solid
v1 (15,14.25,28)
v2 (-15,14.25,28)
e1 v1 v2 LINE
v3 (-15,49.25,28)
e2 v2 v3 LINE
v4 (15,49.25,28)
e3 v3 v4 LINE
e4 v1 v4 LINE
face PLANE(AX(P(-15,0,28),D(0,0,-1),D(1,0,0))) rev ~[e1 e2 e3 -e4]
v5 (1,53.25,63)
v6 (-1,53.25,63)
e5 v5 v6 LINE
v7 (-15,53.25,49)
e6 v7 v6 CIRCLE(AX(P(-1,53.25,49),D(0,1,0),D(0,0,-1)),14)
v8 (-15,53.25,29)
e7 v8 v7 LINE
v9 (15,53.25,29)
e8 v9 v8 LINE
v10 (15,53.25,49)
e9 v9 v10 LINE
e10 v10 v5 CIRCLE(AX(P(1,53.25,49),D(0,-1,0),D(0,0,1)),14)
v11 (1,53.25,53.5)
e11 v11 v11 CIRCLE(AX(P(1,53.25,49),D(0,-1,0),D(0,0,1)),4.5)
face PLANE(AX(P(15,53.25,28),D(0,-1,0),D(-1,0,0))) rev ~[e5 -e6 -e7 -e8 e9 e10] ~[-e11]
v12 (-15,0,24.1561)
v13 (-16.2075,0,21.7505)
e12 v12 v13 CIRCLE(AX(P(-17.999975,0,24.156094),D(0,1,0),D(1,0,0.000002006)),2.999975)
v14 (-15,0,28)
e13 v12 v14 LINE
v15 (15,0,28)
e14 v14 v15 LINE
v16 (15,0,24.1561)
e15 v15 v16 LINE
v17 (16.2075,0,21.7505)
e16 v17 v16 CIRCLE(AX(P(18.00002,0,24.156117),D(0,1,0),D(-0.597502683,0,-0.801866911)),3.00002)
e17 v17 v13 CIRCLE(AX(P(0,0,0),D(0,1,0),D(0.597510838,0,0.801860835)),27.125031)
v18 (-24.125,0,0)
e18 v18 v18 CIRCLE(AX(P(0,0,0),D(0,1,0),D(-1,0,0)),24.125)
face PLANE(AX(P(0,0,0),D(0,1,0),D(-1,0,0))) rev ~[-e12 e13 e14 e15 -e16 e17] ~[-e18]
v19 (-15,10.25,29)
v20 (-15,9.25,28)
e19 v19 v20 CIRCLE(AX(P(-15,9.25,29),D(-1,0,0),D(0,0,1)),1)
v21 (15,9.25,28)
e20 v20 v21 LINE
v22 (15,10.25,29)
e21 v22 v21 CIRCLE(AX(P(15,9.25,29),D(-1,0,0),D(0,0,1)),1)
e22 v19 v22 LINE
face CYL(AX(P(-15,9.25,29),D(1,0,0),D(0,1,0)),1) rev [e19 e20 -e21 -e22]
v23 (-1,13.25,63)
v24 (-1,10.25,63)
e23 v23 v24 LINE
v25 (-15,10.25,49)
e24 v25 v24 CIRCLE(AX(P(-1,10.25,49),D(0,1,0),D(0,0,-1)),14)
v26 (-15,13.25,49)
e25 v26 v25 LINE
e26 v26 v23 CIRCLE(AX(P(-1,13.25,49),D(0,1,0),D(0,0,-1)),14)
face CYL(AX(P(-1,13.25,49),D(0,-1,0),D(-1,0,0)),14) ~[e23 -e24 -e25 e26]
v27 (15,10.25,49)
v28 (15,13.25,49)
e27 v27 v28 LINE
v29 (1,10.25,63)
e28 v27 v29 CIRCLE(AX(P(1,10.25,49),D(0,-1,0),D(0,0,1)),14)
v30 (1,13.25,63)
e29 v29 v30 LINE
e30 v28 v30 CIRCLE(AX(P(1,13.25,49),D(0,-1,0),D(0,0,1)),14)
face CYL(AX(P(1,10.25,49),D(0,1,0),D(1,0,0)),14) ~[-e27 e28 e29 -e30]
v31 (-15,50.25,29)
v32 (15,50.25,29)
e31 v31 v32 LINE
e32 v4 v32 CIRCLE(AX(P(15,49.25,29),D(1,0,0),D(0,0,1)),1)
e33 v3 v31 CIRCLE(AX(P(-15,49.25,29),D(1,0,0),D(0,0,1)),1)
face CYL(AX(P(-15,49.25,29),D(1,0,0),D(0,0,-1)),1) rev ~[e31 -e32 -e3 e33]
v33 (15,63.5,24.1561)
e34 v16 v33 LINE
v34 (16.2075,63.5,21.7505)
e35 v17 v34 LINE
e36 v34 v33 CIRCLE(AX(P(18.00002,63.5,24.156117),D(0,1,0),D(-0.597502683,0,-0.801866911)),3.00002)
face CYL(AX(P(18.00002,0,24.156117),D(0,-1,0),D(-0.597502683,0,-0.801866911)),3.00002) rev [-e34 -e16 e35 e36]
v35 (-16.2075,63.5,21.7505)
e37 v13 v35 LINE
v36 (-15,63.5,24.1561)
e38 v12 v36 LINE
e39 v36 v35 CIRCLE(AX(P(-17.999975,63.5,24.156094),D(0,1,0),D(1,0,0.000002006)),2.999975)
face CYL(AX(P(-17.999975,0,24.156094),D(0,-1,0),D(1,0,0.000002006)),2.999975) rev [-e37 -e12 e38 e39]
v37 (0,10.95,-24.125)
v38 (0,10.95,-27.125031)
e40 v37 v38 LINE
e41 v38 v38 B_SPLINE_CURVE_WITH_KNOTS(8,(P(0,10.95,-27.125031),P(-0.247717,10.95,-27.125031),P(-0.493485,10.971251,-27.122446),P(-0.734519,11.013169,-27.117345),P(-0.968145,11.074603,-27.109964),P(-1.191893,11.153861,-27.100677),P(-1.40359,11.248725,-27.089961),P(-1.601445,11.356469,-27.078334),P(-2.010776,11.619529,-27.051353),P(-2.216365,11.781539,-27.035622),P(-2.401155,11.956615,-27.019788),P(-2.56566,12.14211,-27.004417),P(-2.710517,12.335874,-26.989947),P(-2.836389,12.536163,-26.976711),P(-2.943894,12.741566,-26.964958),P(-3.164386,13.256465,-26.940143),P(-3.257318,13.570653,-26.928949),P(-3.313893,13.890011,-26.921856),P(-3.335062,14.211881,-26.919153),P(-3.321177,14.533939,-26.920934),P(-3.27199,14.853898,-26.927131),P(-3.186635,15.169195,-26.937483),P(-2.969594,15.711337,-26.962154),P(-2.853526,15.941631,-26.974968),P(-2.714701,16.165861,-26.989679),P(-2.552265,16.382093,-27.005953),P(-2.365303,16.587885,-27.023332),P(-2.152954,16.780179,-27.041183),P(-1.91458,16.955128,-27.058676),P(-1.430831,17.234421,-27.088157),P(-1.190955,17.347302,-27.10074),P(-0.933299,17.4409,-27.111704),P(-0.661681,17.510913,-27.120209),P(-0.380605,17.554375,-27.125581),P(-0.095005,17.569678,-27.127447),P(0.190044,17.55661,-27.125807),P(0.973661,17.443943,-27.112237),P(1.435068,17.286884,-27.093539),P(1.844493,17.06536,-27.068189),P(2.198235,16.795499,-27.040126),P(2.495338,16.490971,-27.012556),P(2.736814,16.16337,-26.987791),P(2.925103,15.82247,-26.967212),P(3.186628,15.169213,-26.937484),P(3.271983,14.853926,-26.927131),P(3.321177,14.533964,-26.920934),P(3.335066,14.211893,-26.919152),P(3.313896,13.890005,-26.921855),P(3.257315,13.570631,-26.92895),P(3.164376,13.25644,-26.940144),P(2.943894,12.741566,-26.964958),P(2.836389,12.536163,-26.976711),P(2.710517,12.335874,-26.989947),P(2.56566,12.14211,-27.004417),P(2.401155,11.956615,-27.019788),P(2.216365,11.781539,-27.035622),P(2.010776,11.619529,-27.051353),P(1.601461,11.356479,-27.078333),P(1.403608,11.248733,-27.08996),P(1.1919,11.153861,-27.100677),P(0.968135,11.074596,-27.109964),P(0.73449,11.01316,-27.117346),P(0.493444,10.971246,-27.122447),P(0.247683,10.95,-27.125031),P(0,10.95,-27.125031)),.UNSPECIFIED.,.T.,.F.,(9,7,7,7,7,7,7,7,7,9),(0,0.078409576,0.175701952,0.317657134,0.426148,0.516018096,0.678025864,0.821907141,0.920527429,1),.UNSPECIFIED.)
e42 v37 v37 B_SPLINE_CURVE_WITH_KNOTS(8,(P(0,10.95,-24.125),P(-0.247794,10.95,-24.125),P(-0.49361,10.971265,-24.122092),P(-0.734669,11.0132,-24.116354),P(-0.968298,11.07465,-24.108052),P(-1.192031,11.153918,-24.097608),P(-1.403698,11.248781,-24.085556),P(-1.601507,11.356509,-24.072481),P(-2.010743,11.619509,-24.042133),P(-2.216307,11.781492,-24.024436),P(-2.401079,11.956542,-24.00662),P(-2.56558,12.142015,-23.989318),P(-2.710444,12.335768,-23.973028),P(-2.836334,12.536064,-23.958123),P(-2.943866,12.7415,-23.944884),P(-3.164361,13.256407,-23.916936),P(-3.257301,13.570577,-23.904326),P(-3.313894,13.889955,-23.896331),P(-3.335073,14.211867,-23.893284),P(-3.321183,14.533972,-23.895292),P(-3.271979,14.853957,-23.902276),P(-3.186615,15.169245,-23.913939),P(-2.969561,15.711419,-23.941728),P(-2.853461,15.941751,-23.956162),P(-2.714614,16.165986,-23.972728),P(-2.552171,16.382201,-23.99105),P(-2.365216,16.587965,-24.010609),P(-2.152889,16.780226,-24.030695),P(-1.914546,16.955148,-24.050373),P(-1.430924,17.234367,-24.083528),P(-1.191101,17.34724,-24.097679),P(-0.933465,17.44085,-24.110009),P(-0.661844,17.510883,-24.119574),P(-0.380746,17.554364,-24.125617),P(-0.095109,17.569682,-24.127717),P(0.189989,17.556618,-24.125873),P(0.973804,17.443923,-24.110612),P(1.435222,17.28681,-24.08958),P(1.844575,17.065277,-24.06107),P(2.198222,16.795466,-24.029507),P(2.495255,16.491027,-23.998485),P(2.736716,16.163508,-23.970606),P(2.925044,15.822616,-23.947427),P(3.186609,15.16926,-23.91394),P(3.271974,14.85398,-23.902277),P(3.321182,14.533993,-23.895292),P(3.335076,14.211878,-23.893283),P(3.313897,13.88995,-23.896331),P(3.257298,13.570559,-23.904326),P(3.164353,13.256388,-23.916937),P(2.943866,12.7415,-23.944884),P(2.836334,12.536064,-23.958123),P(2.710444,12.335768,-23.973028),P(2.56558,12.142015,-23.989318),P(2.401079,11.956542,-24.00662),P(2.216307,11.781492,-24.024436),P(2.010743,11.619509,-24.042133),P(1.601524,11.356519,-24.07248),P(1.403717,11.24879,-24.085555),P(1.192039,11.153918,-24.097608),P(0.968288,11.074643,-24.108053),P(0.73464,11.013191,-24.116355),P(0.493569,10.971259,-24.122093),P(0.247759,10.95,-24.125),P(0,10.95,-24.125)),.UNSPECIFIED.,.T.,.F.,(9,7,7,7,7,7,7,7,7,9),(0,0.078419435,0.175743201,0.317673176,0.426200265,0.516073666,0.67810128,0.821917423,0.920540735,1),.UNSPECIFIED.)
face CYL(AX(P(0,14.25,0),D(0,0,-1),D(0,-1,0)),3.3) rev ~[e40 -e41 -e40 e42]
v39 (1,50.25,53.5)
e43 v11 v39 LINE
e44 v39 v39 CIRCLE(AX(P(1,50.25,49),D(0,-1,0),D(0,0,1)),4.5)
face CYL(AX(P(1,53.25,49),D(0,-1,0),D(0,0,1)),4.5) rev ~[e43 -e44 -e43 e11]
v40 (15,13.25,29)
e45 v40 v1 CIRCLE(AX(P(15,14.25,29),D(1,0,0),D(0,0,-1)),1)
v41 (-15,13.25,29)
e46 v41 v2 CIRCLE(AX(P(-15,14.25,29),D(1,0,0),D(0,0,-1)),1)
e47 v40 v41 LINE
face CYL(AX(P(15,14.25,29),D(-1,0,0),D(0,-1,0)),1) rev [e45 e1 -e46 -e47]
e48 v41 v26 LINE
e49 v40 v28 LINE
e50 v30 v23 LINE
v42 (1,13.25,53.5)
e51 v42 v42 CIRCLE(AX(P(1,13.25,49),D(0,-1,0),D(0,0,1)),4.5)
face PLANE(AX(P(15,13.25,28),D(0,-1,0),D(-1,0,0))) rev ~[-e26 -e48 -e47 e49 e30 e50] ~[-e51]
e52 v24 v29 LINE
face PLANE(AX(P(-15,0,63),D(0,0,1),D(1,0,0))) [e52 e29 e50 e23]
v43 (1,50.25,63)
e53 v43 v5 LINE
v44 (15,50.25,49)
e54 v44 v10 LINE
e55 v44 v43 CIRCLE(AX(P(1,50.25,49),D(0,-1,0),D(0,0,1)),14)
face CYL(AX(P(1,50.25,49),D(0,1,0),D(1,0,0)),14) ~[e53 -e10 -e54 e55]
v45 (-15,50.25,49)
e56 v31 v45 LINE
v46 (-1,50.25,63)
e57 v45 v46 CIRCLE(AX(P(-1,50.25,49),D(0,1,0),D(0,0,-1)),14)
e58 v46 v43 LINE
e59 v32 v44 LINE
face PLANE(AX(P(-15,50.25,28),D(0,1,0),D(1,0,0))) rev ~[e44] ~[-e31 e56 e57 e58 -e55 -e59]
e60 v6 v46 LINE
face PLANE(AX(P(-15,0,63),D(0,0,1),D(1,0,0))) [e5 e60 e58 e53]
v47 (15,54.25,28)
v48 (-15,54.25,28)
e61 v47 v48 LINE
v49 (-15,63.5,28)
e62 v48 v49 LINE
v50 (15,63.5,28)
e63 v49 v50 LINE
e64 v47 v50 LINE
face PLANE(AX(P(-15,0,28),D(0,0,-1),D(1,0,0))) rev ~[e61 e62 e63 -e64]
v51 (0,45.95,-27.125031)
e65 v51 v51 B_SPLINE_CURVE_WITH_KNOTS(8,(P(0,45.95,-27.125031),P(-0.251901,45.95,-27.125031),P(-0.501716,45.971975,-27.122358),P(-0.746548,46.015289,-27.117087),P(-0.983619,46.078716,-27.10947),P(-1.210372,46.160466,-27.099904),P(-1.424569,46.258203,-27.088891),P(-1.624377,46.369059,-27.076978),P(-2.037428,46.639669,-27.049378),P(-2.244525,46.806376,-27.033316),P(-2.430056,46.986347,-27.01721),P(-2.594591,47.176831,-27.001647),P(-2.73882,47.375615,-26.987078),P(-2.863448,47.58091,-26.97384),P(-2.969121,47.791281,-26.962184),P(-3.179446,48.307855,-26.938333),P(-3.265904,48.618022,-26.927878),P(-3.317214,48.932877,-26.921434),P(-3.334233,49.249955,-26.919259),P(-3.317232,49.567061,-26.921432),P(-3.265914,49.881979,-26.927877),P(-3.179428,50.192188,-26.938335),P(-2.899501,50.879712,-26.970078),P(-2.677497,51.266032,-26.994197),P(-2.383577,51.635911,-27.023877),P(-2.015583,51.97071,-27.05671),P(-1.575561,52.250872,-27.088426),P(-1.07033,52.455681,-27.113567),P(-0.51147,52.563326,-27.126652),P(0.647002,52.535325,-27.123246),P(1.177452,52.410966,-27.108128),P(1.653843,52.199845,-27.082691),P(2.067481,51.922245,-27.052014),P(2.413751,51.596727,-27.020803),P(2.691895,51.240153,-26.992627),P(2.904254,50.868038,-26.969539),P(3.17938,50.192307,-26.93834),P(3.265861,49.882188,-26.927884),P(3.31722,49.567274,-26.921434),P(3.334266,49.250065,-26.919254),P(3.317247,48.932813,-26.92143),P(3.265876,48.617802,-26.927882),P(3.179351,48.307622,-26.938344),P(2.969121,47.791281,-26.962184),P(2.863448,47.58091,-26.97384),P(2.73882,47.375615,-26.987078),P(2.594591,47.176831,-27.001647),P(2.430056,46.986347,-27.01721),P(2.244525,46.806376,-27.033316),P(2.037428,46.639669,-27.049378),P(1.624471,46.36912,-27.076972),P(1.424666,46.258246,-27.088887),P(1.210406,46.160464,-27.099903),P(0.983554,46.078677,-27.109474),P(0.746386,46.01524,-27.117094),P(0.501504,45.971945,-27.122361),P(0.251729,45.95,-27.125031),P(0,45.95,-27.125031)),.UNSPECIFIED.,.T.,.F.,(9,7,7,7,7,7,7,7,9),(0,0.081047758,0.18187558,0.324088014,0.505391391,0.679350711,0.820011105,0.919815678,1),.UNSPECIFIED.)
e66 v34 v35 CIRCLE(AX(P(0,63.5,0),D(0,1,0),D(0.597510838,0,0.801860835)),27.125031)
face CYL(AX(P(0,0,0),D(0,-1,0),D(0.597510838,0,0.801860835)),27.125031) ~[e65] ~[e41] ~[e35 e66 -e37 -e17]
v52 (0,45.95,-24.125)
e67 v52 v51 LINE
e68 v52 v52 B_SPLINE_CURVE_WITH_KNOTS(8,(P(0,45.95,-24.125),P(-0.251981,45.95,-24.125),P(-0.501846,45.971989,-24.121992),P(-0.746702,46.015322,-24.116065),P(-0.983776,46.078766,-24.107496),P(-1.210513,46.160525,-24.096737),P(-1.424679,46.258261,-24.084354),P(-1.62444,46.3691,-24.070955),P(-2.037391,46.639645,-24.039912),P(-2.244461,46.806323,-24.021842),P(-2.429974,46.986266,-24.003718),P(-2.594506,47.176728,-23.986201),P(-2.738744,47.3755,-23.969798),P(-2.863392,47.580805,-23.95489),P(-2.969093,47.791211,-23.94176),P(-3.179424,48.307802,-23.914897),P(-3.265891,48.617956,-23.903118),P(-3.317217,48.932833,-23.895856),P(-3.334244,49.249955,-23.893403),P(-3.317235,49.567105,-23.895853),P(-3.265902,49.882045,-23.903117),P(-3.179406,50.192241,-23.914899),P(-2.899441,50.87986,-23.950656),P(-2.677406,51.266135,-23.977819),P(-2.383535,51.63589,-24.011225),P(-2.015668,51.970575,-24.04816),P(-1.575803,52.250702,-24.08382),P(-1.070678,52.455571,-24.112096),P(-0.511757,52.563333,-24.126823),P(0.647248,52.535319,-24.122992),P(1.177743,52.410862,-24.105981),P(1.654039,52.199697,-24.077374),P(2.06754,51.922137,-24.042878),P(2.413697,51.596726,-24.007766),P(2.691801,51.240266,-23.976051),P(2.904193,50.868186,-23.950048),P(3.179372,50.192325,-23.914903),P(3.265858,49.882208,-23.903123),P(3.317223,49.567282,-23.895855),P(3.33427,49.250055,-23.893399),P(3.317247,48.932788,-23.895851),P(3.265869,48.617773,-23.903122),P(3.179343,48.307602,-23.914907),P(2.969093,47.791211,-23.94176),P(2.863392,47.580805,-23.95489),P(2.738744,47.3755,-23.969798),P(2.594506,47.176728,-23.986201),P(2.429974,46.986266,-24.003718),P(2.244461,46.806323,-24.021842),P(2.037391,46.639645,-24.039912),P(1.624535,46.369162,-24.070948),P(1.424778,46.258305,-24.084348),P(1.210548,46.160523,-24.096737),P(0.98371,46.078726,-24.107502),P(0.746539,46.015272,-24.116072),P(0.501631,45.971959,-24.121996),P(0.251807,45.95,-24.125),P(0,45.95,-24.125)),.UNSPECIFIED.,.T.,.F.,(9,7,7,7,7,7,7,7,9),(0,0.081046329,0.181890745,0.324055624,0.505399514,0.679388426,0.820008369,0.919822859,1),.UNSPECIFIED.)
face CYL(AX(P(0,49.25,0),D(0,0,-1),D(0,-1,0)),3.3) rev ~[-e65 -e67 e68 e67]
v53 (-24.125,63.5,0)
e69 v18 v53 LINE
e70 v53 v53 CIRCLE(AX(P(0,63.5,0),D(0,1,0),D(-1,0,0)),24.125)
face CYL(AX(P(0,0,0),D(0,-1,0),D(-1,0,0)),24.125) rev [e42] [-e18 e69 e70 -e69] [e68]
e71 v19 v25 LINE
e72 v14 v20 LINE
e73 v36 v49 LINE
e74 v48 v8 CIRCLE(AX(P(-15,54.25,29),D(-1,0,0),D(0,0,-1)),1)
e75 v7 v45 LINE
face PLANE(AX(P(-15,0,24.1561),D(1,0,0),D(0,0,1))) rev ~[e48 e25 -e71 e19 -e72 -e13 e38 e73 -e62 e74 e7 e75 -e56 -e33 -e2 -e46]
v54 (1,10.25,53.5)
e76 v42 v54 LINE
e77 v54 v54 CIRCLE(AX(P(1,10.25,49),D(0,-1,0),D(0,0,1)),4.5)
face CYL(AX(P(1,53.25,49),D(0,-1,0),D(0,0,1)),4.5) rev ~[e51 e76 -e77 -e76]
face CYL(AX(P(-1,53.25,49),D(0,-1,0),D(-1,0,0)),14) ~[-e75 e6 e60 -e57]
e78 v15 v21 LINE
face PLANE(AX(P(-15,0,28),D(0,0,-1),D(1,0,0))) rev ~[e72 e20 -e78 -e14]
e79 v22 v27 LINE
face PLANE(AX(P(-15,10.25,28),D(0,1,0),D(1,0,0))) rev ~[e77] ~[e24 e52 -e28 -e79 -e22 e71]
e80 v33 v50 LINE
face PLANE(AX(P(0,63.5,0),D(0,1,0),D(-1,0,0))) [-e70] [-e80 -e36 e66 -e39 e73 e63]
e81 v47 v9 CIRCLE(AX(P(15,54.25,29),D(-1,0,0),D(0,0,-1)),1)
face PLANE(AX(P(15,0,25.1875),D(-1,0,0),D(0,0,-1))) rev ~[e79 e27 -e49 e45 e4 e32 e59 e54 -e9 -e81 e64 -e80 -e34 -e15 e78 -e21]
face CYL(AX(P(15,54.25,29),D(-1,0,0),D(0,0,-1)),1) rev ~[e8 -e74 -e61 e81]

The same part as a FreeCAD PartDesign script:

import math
import FreeCAD as App
import Part
import Sketcher

V = App.Vector


def edges_at(feature, points):
    """Names of the edges that pass closest to the given points."""
    edges = feature.Shape.Edges
    near = lambda p: min(range(len(edges)), key=lambda i: edges[i].distToShape(Part.Vertex(*p))[0])
    return sorted({f"Edge{near(p) + 1}" for p in points})


def add_polygon(sketch, points):
    """Adds a closed chain of lines whose ends are joined by coincident constraints."""
    first, n = sketch.GeometryCount, len(points)
    for a, b in zip(points, points[1:] + points[:1]):
        sketch.addGeometry(Part.LineSegment(App.Vector(*a, 0), App.Vector(*b, 0)), False)
    for i in range(n):
        sketch.addConstraint(Sketcher.Constraint("Coincident", first + i, 2, first + (i + 1) % n, 1))

doc = App.newDocument("Part")
body = doc.addObject("PartDesign::Body", "Body")

# Sketch on XZ plane
sketch1 = body.newObject("Sketcher::SketchObject", "Sketch")
sketch1.AttachmentSupport = (doc.getObject("XZ_Plane"), [""])
sketch1.MapMode = "FlatFace"
sketch1.addGeometry([
    Part.ArcOfCircle(Part.Circle(V(18, 24.2, 0), V(0, 0, 1), 3), math.radians(180), math.radians(233)),  # 0
    Part.ArcOfCircle(Part.Circle(V(0, 0, 0), V(0, 0, 1), 27.1), math.radians(127), math.radians(413)),  # 1
    Part.ArcOfCircle(Part.Circle(V(-18, 24.2, 0), V(0, 0, 1), 3), math.radians(-53), math.radians(0)),  # 2
    Part.LineSegment(V(-15, 24.2, 0), V(-15, 28, 0)),  # 3
    Part.LineSegment(V(-15, 28, 0), V(15, 28, 0)),  # 4
    Part.LineSegment(V(15, 28, 0), V(15, 24.2, 0)),  # 5
    Part.Circle(V(0, 0, 0), V(0, 0, 1), 24.1),  # 6
], False)
sketch1.addConstraint([
    Sketcher.Constraint("Tangent", 0, 2, 1, 2),
    Sketcher.Constraint("Tangent", 1, 1, 2, 1),
    Sketcher.Constraint("Tangent", 2, 2, 3, 1),
    Sketcher.Constraint("Coincident", 3, 2, 4, 1),
    Sketcher.Constraint("Coincident", 4, 2, 5, 1),
    Sketcher.Constraint("Tangent", 5, 2, 0, 1),
    Sketcher.Constraint("Vertical", 3),
    Sketcher.Constraint("Horizontal", 4),
    Sketcher.Constraint("Vertical", 5),
    Sketcher.Constraint("Coincident", 1, 3, -1, 1),
    Sketcher.Constraint("Coincident", 6, 3, -1, 1),
    Sketcher.Constraint("Equal", 0, 2),
    Sketcher.Constraint("Horizontal", 0, 3, 2, 3),
    Sketcher.Constraint("Radius", 0, 3.0),
    Sketcher.Constraint("Diameter", 6, 48.25),
    Sketcher.Constraint("DistanceX", 4, 1, 4, 2, 30.0),
    Sketcher.Constraint("DistanceY", -1, 1, 3, 2, 28.0),
    Sketcher.Constraint("Radius", 1, 27.125),
])
pad1 = body.newObject("PartDesign::Pad", "Pad")
pad1.Profile = sketch1
pad1.Length = 63.5
pad1.Reversed = True

# Sketch on XY plane
sketch2 = body.newObject("Sketcher::SketchObject", "Sketch001")
sketch2.AttachmentSupport = (doc.getObject("XY_Plane"), [""])
sketch2.MapMode = "FlatFace"
sketch2.AttachmentOffset = App.Placement(V(0, 0, 28), App.Rotation())
add_polygon(sketch2, [(-15, 10.2), (15, 10.2), (15, 13.2), (-15, 13.2)])  # lines 0-3
add_polygon(sketch2, [(-15, 50.2), (15, 50.2), (15, 53.2), (-15, 53.2)])  # lines 4-7
sketch2.addConstraint([
    Sketcher.Constraint("Horizontal", 0),
    Sketcher.Constraint("Vertical", 1),
    Sketcher.Constraint("Horizontal", 2),
    Sketcher.Constraint("Vertical", 3),
    Sketcher.Constraint("Horizontal", 4),
    Sketcher.Constraint("Vertical", 5),
    Sketcher.Constraint("Horizontal", 6),
    Sketcher.Constraint("Vertical", 7),
    Sketcher.Constraint("Vertical", 1, 2, 4, 2),
    Sketcher.Constraint("Vertical", 3, 2, 6, 2),
    Sketcher.Constraint("Equal", 3, 5),
    Sketcher.Constraint("DistanceX", 0, 1, 0, 2, 30.0),
    Sketcher.Constraint("DistanceY", 1, 1, 1, 2, 3.0),
    Sketcher.Constraint("DistanceY", 0, 2, 4, 2, 40.0),
    Sketcher.Constraint("DistanceX", -1, 1, 0, 2, 15.0),
    Sketcher.Constraint("DistanceY", -1, 1, 0, 2, 10.25),
])
pad2 = body.newObject("PartDesign::Pad", "Pad001")
pad2.Profile = sketch2
pad2.Length = 35
doc.recompute()

fillet = body.newObject("PartDesign::Fillet", "Fillet")
fillet.Base = (pad2, edges_at(pad2, [
    (-15, 51.75, 63),
    (15, 11.75, 63),
    (15, 51.75, 63),
    (-15, 11.75, 63),
]))
fillet.Radius = 14

# Sketch on XZ plane
sketch3 = body.newObject("Sketcher::SketchObject", "Sketch002")
sketch3.AttachmentSupport = (doc.getObject("XZ_Plane"), [""])
sketch3.MapMode = "FlatFace"
sketch3.AttachmentOffset = App.Placement(V(0, 0, -53.25), App.Rotation())
sketch3.addGeometry(Part.Circle(V(1, 49, 0), V(0, 0, 1), 4.5), False)
sketch3.addConstraint([
    Sketcher.Constraint("Diameter", 0, 9.0),
    Sketcher.Constraint("DistanceX", -1, 1, 0, 3, 1.0),
    Sketcher.Constraint("DistanceY", -1, 1, 0, 3, 49.0),
])
doc.recompute()
hole = body.newObject("PartDesign::Hole", "Hole")
hole.Profile = sketch3
hole.ThreadType = "None"
hole.Diameter = 9
hole.DepthType = "ThroughAll"
hole.Reversed = True
doc.recompute()

fillet2 = body.newObject("PartDesign::Fillet", "Fillet001")
fillet2.Base = (hole, edges_at(hole, [
    (0, 53.25, 28),
    (0, 50.25, 28),
    (0, 13.25, 28),
    (0, 10.25, 28),
]))
fillet2.Radius = 1

# Sketch on XY plane
sketch4 = body.newObject("Sketcher::SketchObject", "Sketch003")
sketch4.AttachmentSupport = (doc.getObject("XY_Plane"), [""])
sketch4.MapMode = "FlatFace"
sketch4.addGeometry([
    Part.Circle(V(0, 49.2, 0), V(0, 0, 1), 3.3),
    Part.Circle(V(0, 14.2, 0), V(0, 0, 1), 3.3),
], False)
sketch4.addConstraint([
    Sketcher.Constraint("Equal", 0, 1),
    Sketcher.Constraint("PointOnObject", 0, 3, -2),
    Sketcher.Constraint("PointOnObject", 1, 3, -2),
    Sketcher.Constraint("Diameter", 0, 6.6),
    Sketcher.Constraint("DistanceY", 1, 3, 0, 3, 35.0),
    Sketcher.Constraint("DistanceY", -1, 1, 0, 3, 49.25),
])
doc.recompute()
hole2 = body.newObject("PartDesign::Hole", "Hole001")
hole2.Profile = sketch4
hole2.ThreadType = "None"
hole2.Diameter = 6.6
hole2.DepthType = "ThroughAll"

doc.recompute()
